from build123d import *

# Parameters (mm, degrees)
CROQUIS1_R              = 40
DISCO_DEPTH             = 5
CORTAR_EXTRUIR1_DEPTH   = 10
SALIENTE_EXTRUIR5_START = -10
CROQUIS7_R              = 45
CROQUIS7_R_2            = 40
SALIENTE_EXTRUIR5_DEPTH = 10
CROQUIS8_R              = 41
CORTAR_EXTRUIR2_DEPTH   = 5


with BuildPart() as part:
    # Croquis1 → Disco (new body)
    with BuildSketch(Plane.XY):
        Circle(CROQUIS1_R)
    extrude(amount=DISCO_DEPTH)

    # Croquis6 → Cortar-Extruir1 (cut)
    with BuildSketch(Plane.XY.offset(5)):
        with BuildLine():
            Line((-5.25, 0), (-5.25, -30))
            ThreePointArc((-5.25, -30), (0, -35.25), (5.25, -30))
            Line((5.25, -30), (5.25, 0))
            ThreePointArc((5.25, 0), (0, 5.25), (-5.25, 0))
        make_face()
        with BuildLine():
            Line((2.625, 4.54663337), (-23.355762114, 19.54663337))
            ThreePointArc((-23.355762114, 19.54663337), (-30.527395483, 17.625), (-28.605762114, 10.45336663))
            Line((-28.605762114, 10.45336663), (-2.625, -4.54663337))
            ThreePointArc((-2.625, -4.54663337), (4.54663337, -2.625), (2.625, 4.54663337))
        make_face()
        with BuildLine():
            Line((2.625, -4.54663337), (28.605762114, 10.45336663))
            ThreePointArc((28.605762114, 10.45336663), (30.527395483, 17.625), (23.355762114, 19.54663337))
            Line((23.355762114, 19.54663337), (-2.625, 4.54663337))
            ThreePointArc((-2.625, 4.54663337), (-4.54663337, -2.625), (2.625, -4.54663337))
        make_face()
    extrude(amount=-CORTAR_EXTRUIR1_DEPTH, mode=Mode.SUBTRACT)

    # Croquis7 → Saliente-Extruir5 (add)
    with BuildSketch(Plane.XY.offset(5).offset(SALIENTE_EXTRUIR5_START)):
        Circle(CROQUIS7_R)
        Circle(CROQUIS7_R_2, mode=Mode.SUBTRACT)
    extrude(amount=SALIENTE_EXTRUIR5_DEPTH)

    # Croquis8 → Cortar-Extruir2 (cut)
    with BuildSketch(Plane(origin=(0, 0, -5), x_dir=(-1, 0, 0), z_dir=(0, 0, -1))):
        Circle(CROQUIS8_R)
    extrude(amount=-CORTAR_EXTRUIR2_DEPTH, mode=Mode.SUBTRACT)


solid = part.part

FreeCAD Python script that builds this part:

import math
import FreeCAD as App
import Part
import Sketcher

V = App.Vector
Q = App.Units.Quantity

doc = App.newDocument("Part")
body = doc.addObject("PartDesign::Body", "Body")

sketch1 = doc.addObject("Sketcher::SketchObject", "Sketch")
body.addObject(sketch1)
sketch1.AttachmentSupport = (doc.XY_Plane, [""])
sketch1.MapMode = "FlatFace"
sketch1.addGeometry(Part.Circle(V(0, 0, 0), V(0, 0, 1), 40), False)
sketch1.addConstraint([
    Sketcher.Constraint("Coincident", 0, 3, -1, 1),
    Sketcher.Constraint("Diameter", 0, Q("80 mm")),
])
pad1 = doc.addObject("PartDesign::Pad", "Pad")
body.addObject(pad1)
pad1.Profile = sketch1
pad1.Length = 5

sketch2 = doc.addObject("Sketcher::SketchObject", "Sketch001")
body.addObject(sketch2)
sketch2.AttachmentSupport = (doc.XY_Plane, [""])
sketch2.MapMode = "FlatFace"
sketch2.AttachmentOffset = App.Placement(V(0, 0, 5), App.Rotation())
sketch2.addGeometry([
    Part.LineSegment(V(5.25, -3.031089, 0), V(28.605762, 10.453367, 0)),
    Part.ArcOfCircle(Part.Circle(V(25.980762, 15, 0), V(0, 0, 1), 5.25), math.radians(-60), math.radians(120)),
    Part.LineSegment(V(23.355762, 19.546633, 0), V(0, 6.062178, 0)),
    Part.LineSegment(V(0, 6.062178, 0), V(-23.355762, 19.546633, 0)),
    Part.ArcOfCircle(Part.Circle(V(-25.980762, 15, 0), V(0, 0, 1), 5.25), math.radians(60), math.radians(240)),
    Part.LineSegment(V(-28.605762, 10.453367, 0), V(-5.25, -3.031089, 0)),
    Part.LineSegment(V(-5.25, -3.031089, 0), V(-5.25, -30, 0)),
    Part.ArcOfCircle(Part.Circle(V(0, -30, 0), V(0, 0, 1), 5.25), math.radians(180), math.radians(360)),
    Part.LineSegment(V(5.25, -30, 0), V(5.25, -3.031089, 0)),
], False)
sketch2.addConstraint([
    Sketcher.Constraint("Tangent", 0, 2, 1, 1),
    Sketcher.Constraint("Tangent", 1, 2, 2, 1),
    Sketcher.Constraint("Coincident", 2, 2, 3, 1),
    Sketcher.Constraint("Tangent", 3, 2, 4, 1),
    Sketcher.Constraint("Tangent", 4, 2, 5, 1),
    Sketcher.Constraint("Coincident", 5, 2, 6, 1),
    Sketcher.Constraint("Tangent", 6, 2, 7, 1),
    Sketcher.Constraint("Tangent", 7, 2, 8, 1),
    Sketcher.Constraint("Coincident", 8, 2, 0, 1),
    Sketcher.Constraint("Vertical", 6),
    Sketcher.Constraint("Vertical", 8),
    Sketcher.Constraint("Equal", 1, 4),
    Sketcher.Constraint("Equal", 4, 7),
    Sketcher.Constraint("Symmetric", 1, 3, 4, 3, -2),
    Sketcher.Constraint("Symmetric", 5, 2, 8, 2, -2),
    Sketcher.Constraint("PointOnObject", 2, 2, -2),
    Sketcher.Constraint("Parallel", 0, 2),
    Sketcher.Constraint("Equal", 0, 2),
    Sketcher.Constraint("Radius", 1, Q("5.25 mm")),
    Sketcher.Constraint("DistanceY", -1, 1, 1, 3, Q("15 mm")),
    Sketcher.Constraint("DistanceY", 7, 3, -1, 1, Q("30 mm")),
    Sketcher.Constraint("DistanceY", 6, 2, 6, 1, Q("26.968911 mm")),
])
pocket1 = doc.addObject("PartDesign::Pocket", "Pocket")
body.addObject(pocket1)
pocket1.Profile = sketch2
pocket1.Length = 10

sketch3 = doc.addObject("Sketcher::SketchObject", "Sketch002")
body.addObject(sketch3)
sketch3.AttachmentSupport = (doc.XY_Plane, [""])
sketch3.MapMode = "FlatFace"
sketch3.AttachmentOffset = App.Placement(V(0, 0, -5), App.Rotation())
sketch3.addGeometry([
    Part.Circle(V(0, 0, 0), V(0, 0, 1), 45),
    Part.Circle(V(0, 0, 0), V(0, 0, 1), 40),
], False)
sketch3.addConstraint([
    Sketcher.Constraint("Coincident", 0, 3, -1, 1),
    Sketcher.Constraint("Coincident", 1, 3, -1, 1),
    Sketcher.Constraint("Diameter", 0, Q("90 mm")),
    Sketcher.Constraint("Diameter", 1, Q("80 mm")),
])
pad2 = doc.addObject("PartDesign::Pad", "Pad001")
body.addObject(pad2)
pad2.Profile = sketch3
pad2.Length = 10

sketch4 = doc.addObject("Sketcher::SketchObject", "Sketch003")
body.addObject(sketch4)
sketch4.AttachmentSupport = (doc.XY_Plane, [""])
sketch4.MapMode = "FlatFace"
sketch4.AttachmentOffset = App.Placement(V(0, 0, -5), App.Rotation())
sketch4.addGeometry(Part.Circle(V(0, 0, 0), V(0, 0, 1), 41), False)
sketch4.addConstraint([
    Sketcher.Constraint("Coincident", 0, 3, -1, 1),
    Sketcher.Constraint("Diameter", 0, Q("82 mm")),
])
pocket2 = doc.addObject("PartDesign::Pocket", "Pocket001")
body.addObject(pocket2)
pocket2.Profile = sketch4
pocket2.Length = 5
pocket2.Reversed = True

doc.recompute()
